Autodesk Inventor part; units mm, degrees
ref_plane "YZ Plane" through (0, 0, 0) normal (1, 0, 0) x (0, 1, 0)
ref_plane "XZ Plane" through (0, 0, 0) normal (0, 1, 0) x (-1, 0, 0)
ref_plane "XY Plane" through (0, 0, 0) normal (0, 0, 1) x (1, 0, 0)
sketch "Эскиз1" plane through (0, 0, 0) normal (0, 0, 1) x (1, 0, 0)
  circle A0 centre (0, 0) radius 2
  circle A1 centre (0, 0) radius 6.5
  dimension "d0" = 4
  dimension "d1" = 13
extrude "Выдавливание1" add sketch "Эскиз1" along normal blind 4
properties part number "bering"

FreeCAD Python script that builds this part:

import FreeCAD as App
import Part
import Sketcher
from FreeCAD import Vector

doc = App.newDocument("Part")
body = doc.addObject("PartDesign::Body", "Body")

sketch1 = body.newObject("Sketcher::SketchObject", "Sketch")
sketch1.AttachmentSupport = (doc.getObject("XY_Plane"), [""])
sketch1.MapMode = "FlatFace"
sketch1.addGeometry(Part.Circle(Vector(0, 0, 0), Vector(0, 0, 1), 6.5), False)
sketch1.addGeometry(Part.Circle(Vector(0, 0, 0), Vector(0, 0, 1), 2), False)
sketch1.addConstraint(Sketcher.Constraint("Coincident", 0, 3, -1, 1))
sketch1.addConstraint(Sketcher.Constraint("Coincident", 1, 3, -1, 1))
sketch1.addConstraint(Sketcher.Constraint("Diameter", 0, 13.0))
sketch1.addConstraint(Sketcher.Constraint("Diameter", 1, 4.0))
pad1 = body.newObject("PartDesign::Pad", "Pad")
pad1.Profile = sketch1
pad1.Length = 4

doc.recompute()
